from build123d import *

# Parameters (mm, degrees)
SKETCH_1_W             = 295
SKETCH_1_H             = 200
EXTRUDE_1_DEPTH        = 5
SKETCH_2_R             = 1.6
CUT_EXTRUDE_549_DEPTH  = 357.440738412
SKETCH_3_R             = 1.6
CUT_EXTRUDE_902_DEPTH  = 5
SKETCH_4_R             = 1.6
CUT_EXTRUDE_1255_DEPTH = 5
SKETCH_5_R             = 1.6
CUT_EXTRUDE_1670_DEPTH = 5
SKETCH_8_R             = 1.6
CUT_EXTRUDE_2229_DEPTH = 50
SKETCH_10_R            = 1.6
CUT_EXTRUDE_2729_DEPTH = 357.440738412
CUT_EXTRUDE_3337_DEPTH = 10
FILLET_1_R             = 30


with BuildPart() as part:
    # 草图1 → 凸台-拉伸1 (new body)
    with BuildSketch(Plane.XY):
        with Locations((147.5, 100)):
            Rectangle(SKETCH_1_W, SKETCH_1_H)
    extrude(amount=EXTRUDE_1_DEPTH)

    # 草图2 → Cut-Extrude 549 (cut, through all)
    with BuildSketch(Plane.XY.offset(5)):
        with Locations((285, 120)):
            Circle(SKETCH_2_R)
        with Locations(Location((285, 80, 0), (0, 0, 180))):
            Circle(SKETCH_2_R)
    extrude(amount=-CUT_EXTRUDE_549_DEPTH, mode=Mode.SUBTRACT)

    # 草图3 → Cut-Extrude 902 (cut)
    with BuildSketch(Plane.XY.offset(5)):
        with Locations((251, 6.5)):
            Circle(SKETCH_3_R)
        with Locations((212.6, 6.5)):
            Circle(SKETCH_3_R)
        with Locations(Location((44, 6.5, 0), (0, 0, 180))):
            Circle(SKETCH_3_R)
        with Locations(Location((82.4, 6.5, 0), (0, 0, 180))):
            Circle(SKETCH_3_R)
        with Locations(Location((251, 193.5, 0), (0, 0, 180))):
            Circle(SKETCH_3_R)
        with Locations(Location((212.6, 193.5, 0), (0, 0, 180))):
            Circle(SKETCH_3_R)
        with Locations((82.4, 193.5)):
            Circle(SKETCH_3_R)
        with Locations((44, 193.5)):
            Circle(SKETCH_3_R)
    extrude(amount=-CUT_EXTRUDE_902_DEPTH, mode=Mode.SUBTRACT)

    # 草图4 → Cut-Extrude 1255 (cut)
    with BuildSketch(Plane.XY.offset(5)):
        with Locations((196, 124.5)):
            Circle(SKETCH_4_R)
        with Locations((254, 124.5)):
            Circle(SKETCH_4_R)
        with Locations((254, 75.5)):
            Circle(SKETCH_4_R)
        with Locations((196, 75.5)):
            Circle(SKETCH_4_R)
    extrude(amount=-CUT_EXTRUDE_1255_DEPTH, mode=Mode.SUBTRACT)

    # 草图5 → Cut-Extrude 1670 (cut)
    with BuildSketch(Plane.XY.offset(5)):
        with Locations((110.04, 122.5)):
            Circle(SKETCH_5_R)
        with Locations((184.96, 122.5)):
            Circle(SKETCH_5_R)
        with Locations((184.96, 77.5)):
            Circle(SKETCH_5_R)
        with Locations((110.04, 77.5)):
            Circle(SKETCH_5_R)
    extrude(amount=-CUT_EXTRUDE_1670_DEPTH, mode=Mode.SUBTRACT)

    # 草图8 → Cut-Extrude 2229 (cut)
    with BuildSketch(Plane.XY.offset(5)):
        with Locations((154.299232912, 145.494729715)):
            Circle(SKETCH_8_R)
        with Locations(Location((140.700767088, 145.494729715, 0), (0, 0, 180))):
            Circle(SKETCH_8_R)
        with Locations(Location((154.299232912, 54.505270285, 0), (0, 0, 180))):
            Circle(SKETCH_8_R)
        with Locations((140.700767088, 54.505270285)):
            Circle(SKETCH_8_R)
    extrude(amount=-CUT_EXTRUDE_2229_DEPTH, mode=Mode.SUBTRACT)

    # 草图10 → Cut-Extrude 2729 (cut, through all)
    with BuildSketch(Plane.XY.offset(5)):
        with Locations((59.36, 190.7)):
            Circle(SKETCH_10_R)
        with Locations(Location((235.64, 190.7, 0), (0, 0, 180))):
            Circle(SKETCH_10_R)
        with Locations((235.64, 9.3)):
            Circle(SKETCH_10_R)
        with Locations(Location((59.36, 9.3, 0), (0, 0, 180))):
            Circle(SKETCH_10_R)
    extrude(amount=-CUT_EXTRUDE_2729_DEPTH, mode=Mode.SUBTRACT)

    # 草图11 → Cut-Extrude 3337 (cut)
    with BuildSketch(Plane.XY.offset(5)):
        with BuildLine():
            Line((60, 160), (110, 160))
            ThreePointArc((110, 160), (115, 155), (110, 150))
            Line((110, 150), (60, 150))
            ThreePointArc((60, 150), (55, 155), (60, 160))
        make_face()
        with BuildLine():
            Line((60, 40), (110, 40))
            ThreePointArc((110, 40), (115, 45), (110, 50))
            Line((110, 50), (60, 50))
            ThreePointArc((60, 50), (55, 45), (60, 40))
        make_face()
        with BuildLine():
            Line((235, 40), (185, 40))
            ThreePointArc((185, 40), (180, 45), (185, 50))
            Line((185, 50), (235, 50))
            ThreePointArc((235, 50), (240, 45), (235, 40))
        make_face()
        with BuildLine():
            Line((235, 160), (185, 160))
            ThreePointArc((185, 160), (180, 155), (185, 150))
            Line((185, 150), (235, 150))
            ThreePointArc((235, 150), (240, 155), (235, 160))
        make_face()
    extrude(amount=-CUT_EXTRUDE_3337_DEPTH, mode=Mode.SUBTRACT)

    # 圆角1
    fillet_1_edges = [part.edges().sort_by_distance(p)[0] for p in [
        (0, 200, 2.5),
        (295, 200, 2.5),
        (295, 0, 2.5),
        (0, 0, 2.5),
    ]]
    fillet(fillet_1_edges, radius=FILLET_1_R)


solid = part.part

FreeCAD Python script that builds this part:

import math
import FreeCAD as App
import Part
import Sketcher

V = App.Vector
Q = App.Units.Quantity


def edges_at(feature, points):
    """Names of the edges that pass closest to the given points."""
    edges = feature.Shape.Edges
    near = lambda p: min(range(len(edges)), key=lambda i: edges[i].distToShape(Part.Vertex(*p))[0])
    return sorted({f"Edge{near(p) + 1}" for p in points})

doc = App.newDocument("Part")
params = doc.addObject("Spreadsheet::Sheet", "Params")
for row, (alias, value) in enumerate([
    ("sketch1_width", "295 mm"),
    ("sketch1_height", "200 mm"),
    ("pad1_length", "5 mm"),
    ("sketch2_diameter", "3.2 mm"),
    ("sketch3_diameter", "3.2 mm"),
    ("pocket2_length", "5 mm"),
    ("sketch4_diameter", "3.2 mm"),
    ("pocket3_length", "5 mm"),
    ("sketch5_diameter", "3.2 mm"),
    ("pocket4_length", "5 mm"),
    ("sketch6_diameter", "3.2 mm"),
    ("pocket5_length", "50 mm"),
    ("sketch7_diameter", "3.2 mm"),
    ("sketch8_radius", "5 mm"),
    ("sketch8_width", "50 mm"),
    ("pocket7_length", "10 mm"),
    ("fillet_radius", "30 mm"),
], start=1):
    params.set(f"A{row}", alias)
    params.set(f"B{row}", "=" + value)
    params.setAlias(f"B{row}", alias)

body = doc.addObject("PartDesign::Body", "Body")

# Sketch on XY plane
sketch1 = body.newObject("Sketcher::SketchObject", "Sketch")
sketch1.AttachmentSupport = (doc.getObject("XY_Plane"), [""])
sketch1.MapMode = "FlatFace"
sketch1.addGeometry([
    Part.LineSegment(V(0, 200, 0), V(0, 0, 0)),
    Part.LineSegment(V(0, 0, 0), V(295, 0, 0)),
    Part.LineSegment(V(295, 0, 0), V(295, 200, 0)),
    Part.LineSegment(V(295, 200, 0), V(0, 200, 0)),
], False)
sketch1.addConstraint([
    Sketcher.Constraint("Coincident", 0, 2, 1, 1),
    Sketcher.Constraint("Coincident", 1, 2, 2, 1),
    Sketcher.Constraint("Coincident", 2, 2, 3, 1),
    Sketcher.Constraint("Coincident", 3, 2, 0, 1),
    Sketcher.Constraint("Vertical", 0),
    Sketcher.Constraint("Horizontal", 1),
    Sketcher.Constraint("Vertical", 2),
    Sketcher.Constraint("Horizontal", 3),
    Sketcher.Constraint("Coincident", 0, 2, -1, 1),
    Sketcher.Constraint("DistanceX", 1, 1, 1, 2, Q("295 mm")),
    Sketcher.Constraint("DistanceY", 0, 2, 0, 1, Q("200 mm")),
])
sketch1.setExpression("Constraints[9]", "Params.sketch1_width")
sketch1.setExpression("Constraints[10]", "Params.sketch1_height")
pad1 = body.newObject("PartDesign::Pad", "Pad")
pad1.Profile = sketch1
pad1.setExpression("Length", "Params.pad1_length")

# Sketch on XY plane
sketch2 = body.newObject("Sketcher::SketchObject", "Sketch001")
sketch2.AttachmentSupport = (doc.getObject("XY_Plane"), [""])
sketch2.MapMode = "FlatFace"
sketch2.AttachmentOffset = App.Placement(V(0, 0, 5), App.Rotation())
sketch2.addGeometry([
    Part.Circle(V(285, 120, 0), V(0, 0, 1), 1.6),
    Part.Circle(V(285, 80, 0), V(0, 0, 1), 1.6),
], False)
sketch2.addConstraint([
    Sketcher.Constraint("Equal", 0, 1),
    Sketcher.Constraint("Vertical", 0, 3, 1, 3),
    Sketcher.Constraint("Diameter", 0, Q("3.2 mm")),
    Sketcher.Constraint("DistanceX", -1, 1, 0, 3, Q("285 mm")),
    Sketcher.Constraint("DistanceY", -1, 1, 0, 3, Q("120 mm")),
    Sketcher.Constraint("DistanceY", -1, 1, 1, 3, Q("80 mm")),
])
sketch2.setExpression("Constraints[2]", "Params.sketch2_diameter")
pocket1 = body.newObject("PartDesign::Pocket", "Pocket")
pocket1.Profile = sketch2
pocket1.Type = "ThroughAll"

# Sketch on XY plane
sketch3 = body.newObject("Sketcher::SketchObject", "Sketch002")
sketch3.AttachmentSupport = (doc.getObject("XY_Plane"), [""])
sketch3.MapMode = "FlatFace"
sketch3.AttachmentOffset = App.Placement(V(0, 0, 5), App.Rotation())
sketch3.addGeometry([
    Part.Circle(V(251, 6.5, 0), V(0, 0, 1), 1.6),  # 0
    Part.Circle(V(212.6, 6.5, 0), V(0, 0, 1), 1.6),  # 1
    Part.Circle(V(44, 6.5, 0), V(0, 0, 1), 1.6),  # 2
    Part.Circle(V(82.4, 6.5, 0), V(0, 0, 1), 1.6),  # 3
    Part.Circle(V(251, 193.5, 0), V(0, 0, 1), 1.6),  # 4
    Part.Circle(V(212.6, 193.5, 0), V(0, 0, 1), 1.6),  # 5
    Part.Circle(V(82.4, 193.5, 0), V(0, 0, 1), 1.6),  # 6
    Part.Circle(V(44, 193.5, 0), V(0, 0, 1), 1.6),  # 7
], False)
sketch3.addConstraint([
    Sketcher.Constraint("Equal", 0, 1),
    Sketcher.Constraint("Equal", 1, 2),
    Sketcher.Constraint("Equal", 2, 3),
    Sketcher.Constraint("Equal", 3, 4),
    Sketcher.Constraint("Equal", 4, 5),
    Sketcher.Constraint("Equal", 5, 6),
    Sketcher.Constraint("Equal", 6, 7),
    Sketcher.Constraint("Horizontal", 0, 3, 1, 3),
    Sketcher.Constraint("Horizontal", 1, 3, 2, 3),
    Sketcher.Constraint("Horizontal", 2, 3, 3, 3),
    Sketcher.Constraint("Horizontal", 4, 3, 5, 3),
    Sketcher.Constraint("Horizontal", 5, 3, 6, 3),
    Sketcher.Constraint("Horizontal", 6, 3, 7, 3),
    Sketcher.Constraint("Vertical", 0, 3, 4, 3),
    Sketcher.Constraint("Vertical", 1, 3, 5, 3),
    Sketcher.Constraint("Vertical", 3, 3, 6, 3),
    Sketcher.Constraint("Vertical", 2, 3, 7, 3),
    Sketcher.Constraint("Diameter", 0, Q("3.2 mm")),
    Sketcher.Constraint("DistanceX", -1, 1, 0, 3, Q("251 mm")),
    Sketcher.Constraint("DistanceX", -1, 1, 2, 3, Q("44 mm")),
    Sketcher.Constraint("DistanceY", 0, 3, 4, 3, Q("187 mm")),
    Sketcher.Constraint("DistanceY", -1, 1, 0, 3, Q("6.5 mm")),
    Sketcher.Constraint("DistanceX", -1, 1, 1, 3, Q("212.6 mm")),
    Sketcher.Constraint("DistanceX", -1, 1, 3, 3, Q("82.4 mm")),
])
sketch3.setExpression("Constraints[17]", "Params.sketch3_diameter")
pocket2 = body.newObject("PartDesign::Pocket", "Pocket001")
pocket2.Profile = sketch3
pocket2.setExpression("Length", "Params.pocket2_length")

# Sketch on XY plane
sketch4 = body.newObject("Sketcher::SketchObject", "Sketch003")
sketch4.AttachmentSupport = (doc.getObject("XY_Plane"), [""])
sketch4.MapMode = "FlatFace"
sketch4.AttachmentOffset = App.Placement(V(0, 0, 5), App.Rotation())
sketch4.addGeometry([
    Part.Circle(V(196, 124.5, 0), V(0, 0, 1), 1.6),
    Part.Circle(V(254, 124.5, 0), V(0, 0, 1), 1.6),
    Part.Circle(V(254, 75.5, 0), V(0, 0, 1), 1.6),
    Part.Circle(V(196, 75.5, 0), V(0, 0, 1), 1.6),
], False)
sketch4.addConstraint([
    Sketcher.Constraint("Equal", 0, 1),
    Sketcher.Constraint("Equal", 1, 2),
    Sketcher.Constraint("Equal", 2, 3),
    Sketcher.Constraint("Horizontal", 0, 3, 1, 3),
    Sketcher.Constraint("Horizontal", 2, 3, 3, 3),
    Sketcher.Constraint("Vertical", 1, 3, 2, 3),
    Sketcher.Constraint("Vertical", 0, 3, 3, 3),
    Sketcher.Constraint("Diameter", 0, Q("3.2 mm")),
    Sketcher.Constraint("DistanceX", -1, 1, 0, 3, Q("196 mm")),
    Sketcher.Constraint("DistanceX", -1, 1, 1, 3, Q("254 mm")),
    Sketcher.Constraint("DistanceY", 2, 3, 1, 3, Q("49 mm")),
    Sketcher.Constraint("DistanceY", -1, 1, 0, 3, Q("124.5 mm")),
])
sketch4.setExpression("Constraints[7]", "Params.sketch4_diameter")
pocket3 = body.newObject("PartDesign::Pocket", "Pocket002")
pocket3.Profile = sketch4
pocket3.setExpression("Length", "Params.pocket3_length")

# Sketch on XY plane
sketch5 = body.newObject("Sketcher::SketchObject", "Sketch004")
sketch5.AttachmentSupport = (doc.getObject("XY_Plane"), [""])
sketch5.MapMode = "FlatFace"
sketch5.AttachmentOffset = App.Placement(V(0, 0, 5), App.Rotation())
sketch5.addGeometry([
    Part.Circle(V(110, 122.5, 0), V(0, 0, 1), 1.6),
    Part.Circle(V(185, 122.5, 0), V(0, 0, 1), 1.6),
    Part.Circle(V(185, 77.5, 0), V(0, 0, 1), 1.6),
    Part.Circle(V(110, 77.5, 0), V(0, 0, 1), 1.6),
], False)
sketch5.addConstraint([
    Sketcher.Constraint("Equal", 0, 1),
    Sketcher.Constraint("Equal", 1, 2),
    Sketcher.Constraint("Equal", 2, 3),
    Sketcher.Constraint("Horizontal", 0, 3, 1, 3),
    Sketcher.Constraint("Horizontal", 2, 3, 3, 3),
    Sketcher.Constraint("Vertical", 1, 3, 2, 3),
    Sketcher.Constraint("Vertical", 0, 3, 3, 3),
    Sketcher.Constraint("Diameter", 0, Q("3.2 mm")),
    Sketcher.Constraint("DistanceY", 2, 3, 1, 3, Q("45 mm")),
    Sketcher.Constraint("DistanceY", -1, 1, 0, 3, Q("122.5 mm")),
    Sketcher.Constraint("DistanceX", -1, 1, 0, 3, Q("110.04 mm")),
    Sketcher.Constraint("DistanceX", -1, 1, 1, 3, Q("184.96 mm")),
])
sketch5.setExpression("Constraints[7]", "Params.sketch5_diameter")
pocket4 = body.newObject("PartDesign::Pocket", "Pocket003")
pocket4.Profile = sketch5
pocket4.setExpression("Length", "Params.pocket4_length")

# Sketch on XY plane
sketch6 = body.newObject("Sketcher::SketchObject", "Sketch005")
sketch6.AttachmentSupport = (doc.getObject("XY_Plane"), [""])
sketch6.MapMode = "FlatFace"
sketch6.AttachmentOffset = App.Placement(V(0, 0, 5), App.Rotation())
sketch6.addGeometry([
    Part.Circle(V(154.3, 145.5, 0), V(0, 0, 1), 1.6),
    Part.Circle(V(140.7, 145.5, 0), V(0, 0, 1), 1.6),
    Part.Circle(V(154.3, 54.5, 0), V(0, 0, 1), 1.6),
    Part.Circle(V(140.7, 54.5, 0), V(0, 0, 1), 1.6),
], False)
sketch6.addConstraint([
    Sketcher.Constraint("Equal", 0, 1),
    Sketcher.Constraint("Equal", 1, 2),
    Sketcher.Constraint("Equal", 2, 3),
    Sketcher.Constraint("Horizontal", 0, 3, 1, 3),
    Sketcher.Constraint("Horizontal", 2, 3, 3, 3),
    Sketcher.Constraint("Vertical", 0, 3, 2, 3),
    Sketcher.Constraint("Vertical", 1, 3, 3, 3),
    Sketcher.Constraint("Diameter", 0, Q("3.2 mm")),
    Sketcher.Constraint("DistanceY", -1, 1, 0, 3, Q("145.49473 mm")),
    Sketcher.Constraint("DistanceY", -1, 1, 2, 3, Q("54.50527 mm")),
    Sketcher.Constraint("DistanceX", -1, 1, 0, 3, Q("154.299233 mm")),
    Sketcher.Constraint("DistanceX", -1, 1, 1, 3, Q("140.700767 mm")),
])
sketch6.setExpression("Constraints[7]", "Params.sketch6_diameter")
pocket5 = body.newObject("PartDesign::Pocket", "Pocket004")
pocket5.Profile = sketch6
pocket5.setExpression("Length", "Params.pocket5_length")

# Sketch on XY plane
sketch7 = body.newObject("Sketcher::SketchObject", "Sketch006")
sketch7.AttachmentSupport = (doc.getObject("XY_Plane"), [""])
sketch7.MapMode = "FlatFace"
sketch7.AttachmentOffset = App.Placement(V(0, 0, 5), App.Rotation())
sketch7.addGeometry([
    Part.Circle(V(59.4, 190.7, 0), V(0, 0, 1), 1.6),
    Part.Circle(V(235.6, 190.7, 0), V(0, 0, 1), 1.6),
    Part.Circle(V(235.6, 9.3, 0), V(0, 0, 1), 1.6),
    Part.Circle(V(59.4, 9.3, 0), V(0, 0, 1), 1.6),
], False)
sketch7.addConstraint([
    Sketcher.Constraint("Equal", 0, 1),
    Sketcher.Constraint("Equal", 1, 2),
    Sketcher.Constraint("Equal", 2, 3),
    Sketcher.Constraint("Horizontal", 0, 3, 1, 3),
    Sketcher.Constraint("Horizontal", 2, 3, 3, 3),
    Sketcher.Constraint("Vertical", 1, 3, 2, 3),
    Sketcher.Constraint("Vertical", 0, 3, 3, 3),
    Sketcher.Constraint("Diameter", 0, Q("3.2 mm")),
    Sketcher.Constraint("DistanceY", -1, 1, 0, 3, Q("190.7 mm")),
    Sketcher.Constraint("DistanceY", -1, 1, 2, 3, Q("9.3 mm")),
    Sketcher.Constraint("DistanceX", -1, 1, 0, 3, Q("59.36 mm")),
    Sketcher.Constraint("DistanceX", -1, 1, 1, 3, Q("235.64 mm")),
])
sketch7.setExpression("Constraints[7]", "Params.sketch7_diameter")
pocket6 = body.newObject("PartDesign::Pocket", "Pocket005")
pocket6.Profile = sketch7
pocket6.Type = "ThroughAll"

# Sketch on XY plane
sketch8 = body.newObject("Sketcher::SketchObject", "Sketch007")
sketch8.AttachmentSupport = (doc.getObject("XY_Plane"), [""])
sketch8.MapMode = "FlatFace"
sketch8.AttachmentOffset = App.Placement(V(0, 0, 5), App.Rotation())
sketch8.addGeometry([
    Part.LineSegment(V(110, 160, 0), V(60, 160, 0)),  # 0
    Part.ArcOfCircle(Part.Circle(V(60, 155, 0), V(0, 0, 1), 5), math.radians(90), math.radians(270)),  # 1
    Part.LineSegment(V(60, 150, 0), V(110, 150, 0)),  # 2
    Part.ArcOfCircle(Part.Circle(V(110, 155, 0), V(0, 0, 1), 5), math.radians(-90), math.radians(90)),  # 3
    Part.LineSegment(V(60, 40, 0), V(110, 40, 0)),  # 4
    Part.ArcOfCircle(Part.Circle(V(110, 45, 0), V(0, 0, 1), 5), math.radians(-90), math.radians(90)),  # 5
    Part.LineSegment(V(110, 50, 0), V(60, 50, 0)),  # 6
    Part.ArcOfCircle(Part.Circle(V(60, 45, 0), V(0, 0, 1), 5), math.radians(90), math.radians(270)),  # 7
    Part.LineSegment(V(185, 40, 0), V(235, 40, 0)),  # 8
    Part.ArcOfCircle(Part.Circle(V(235, 45, 0), V(0, 0, 1), 5), math.radians(-90), math.radians(90)),  # 9
    Part.LineSegment(V(235, 50, 0), V(185, 50, 0)),  # 10
    Part.ArcOfCircle(Part.Circle(V(185, 45, 0), V(0, 0, 1), 5), math.radians(90), math.radians(270)),  # 11
    Part.LineSegment(V(235, 160, 0), V(185, 160, 0)),  # 12
    Part.ArcOfCircle(Part.Circle(V(185, 155, 0), V(0, 0, 1), 5), math.radians(90), math.radians(270)),  # 13
    Part.LineSegment(V(185, 150, 0), V(235, 150, 0)),  # 14
    Part.ArcOfCircle(Part.Circle(V(235, 155, 0), V(0, 0, 1), 5), math.radians(-90), math.radians(90)),  # 15
], False)
sketch8.addConstraint([
    Sketcher.Constraint("Tangent", 0, 2, 1, 1),
    Sketcher.Constraint("Tangent", 1, 2, 2, 1),
    Sketcher.Constraint("Tangent", 2, 2, 3, 1),
    Sketcher.Constraint("Tangent", 3, 2, 0, 1),
    Sketcher.Constraint("Tangent", 4, 2, 5, 1),
    Sketcher.Constraint("Tangent", 5, 2, 6, 1),
    Sketcher.Constraint("Tangent", 6, 2, 7, 1),
    Sketcher.Constraint("Tangent", 7, 2, 4, 1),
    Sketcher.Constraint("Tangent", 8, 2, 9, 1),
    Sketcher.Constraint("Tangent", 9, 2, 10, 1),
    Sketcher.Constraint("Tangent", 10, 2, 11, 1),
    Sketcher.Constraint("Tangent", 11, 2, 8, 1),
    Sketcher.Constraint("Tangent", 12, 2, 13, 1),
    Sketcher.Constraint("Tangent", 13, 2, 14, 1),
    Sketcher.Constraint("Tangent", 14, 2, 15, 1),
    Sketcher.Constraint("Tangent", 15, 2, 12, 1),
    Sketcher.Constraint("Horizontal", 0),
    Sketcher.Constraint("Horizontal", 2),
    Sketcher.Constraint("Horizontal", 4),
    Sketcher.Constraint("Horizontal", 6),
    Sketcher.Constraint("Horizontal", 8),
    Sketcher.Constraint("Horizontal", 10),
    Sketcher.Constraint("Horizontal", 12),
    Sketcher.Constraint("Horizontal", 14),
    Sketcher.Constraint("Equal", 3, 5),
    Sketcher.Constraint("Equal", 7, 9),
    Sketcher.Constraint("Equal", 11, 13),
    Sketcher.Constraint("Horizontal", 7, 3, 9, 3),
    Sketcher.Constraint("Horizontal", 3, 3, 13, 3),
    Sketcher.Constraint("Vertical", 3, 3, 5, 3),
    Sketcher.Constraint("Vertical", 1, 3, 7, 3),
    Sketcher.Constraint("Vertical", 11, 3, 13, 3),
    Sketcher.Constraint("Vertical", 9, 3, 15, 3),
    Sketcher.Constraint("Equal", 6, 8),
    Sketcher.Constraint("Radius", 1, Q("5 mm")),
    Sketcher.Constraint("DistanceX", 0, 2, 0, 1, Q("50 mm")),
    Sketcher.Constraint("DistanceX", -1, 1, 1, 3, Q("60 mm")),
    Sketcher.Constraint("DistanceY", -1, 1, 1, 3, Q("155 mm")),
    Sketcher.Constraint("DistanceY", -1, 1, 5, 3, Q("45 mm")),
    Sketcher.Constraint("DistanceX", -1, 1, 9, 3, Q("235 mm")),
])
sketch8.setExpression("Constraints[34]", "Params.sketch8_radius")
sketch8.setExpression("Constraints[35]", "Params.sketch8_width")
pocket7 = body.newObject("PartDesign::Pocket", "Pocket006")
pocket7.Profile = sketch8
pocket7.setExpression("Length", "Params.pocket7_length")
doc.recompute()

fillet = body.newObject("PartDesign::Fillet", "Fillet")
fillet.Base = (pocket7, edges_at(pocket7, [
    (0, 200, 2.5),
    (295, 200, 2.5),
    (295, 0, 2.5),
    (0, 0, 2.5),
]))
fillet.setExpression("Radius", "Params.fillet_radius")

doc.recompute()
